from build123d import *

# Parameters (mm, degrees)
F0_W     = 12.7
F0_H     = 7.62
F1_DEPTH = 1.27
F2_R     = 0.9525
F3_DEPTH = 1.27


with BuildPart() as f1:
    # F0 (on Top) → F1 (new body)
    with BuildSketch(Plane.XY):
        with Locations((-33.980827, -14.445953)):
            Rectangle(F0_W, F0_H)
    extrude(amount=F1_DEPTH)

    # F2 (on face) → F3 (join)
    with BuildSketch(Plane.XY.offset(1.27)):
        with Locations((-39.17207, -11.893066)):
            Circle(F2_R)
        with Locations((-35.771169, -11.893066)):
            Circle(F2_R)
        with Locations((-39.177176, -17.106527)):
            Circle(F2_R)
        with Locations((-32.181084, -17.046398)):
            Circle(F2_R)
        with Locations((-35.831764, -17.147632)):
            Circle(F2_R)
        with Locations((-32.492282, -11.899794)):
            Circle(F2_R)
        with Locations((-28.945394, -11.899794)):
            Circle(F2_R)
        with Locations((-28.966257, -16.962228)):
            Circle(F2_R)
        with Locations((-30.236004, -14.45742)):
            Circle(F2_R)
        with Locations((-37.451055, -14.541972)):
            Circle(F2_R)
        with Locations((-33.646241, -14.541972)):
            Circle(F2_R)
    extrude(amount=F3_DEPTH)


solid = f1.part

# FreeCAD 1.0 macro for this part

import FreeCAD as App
import Part
import Sketcher
Q = App.Units.Quantity

doc = App.newDocument("Part")
body = doc.addObject("PartDesign::Body", "Body")

sketch1 = body.newObject("Sketcher::SketchObject", "Sketch")
sketch1.AttachmentSupport = (doc.getObject("XY_Plane"), [""])
sketch1.MapMode = "FlatFace"
sketch1.addGeometry(Part.LineSegment(App.Vector(-40, -11, 0), App.Vector(-40, -18, 0)), False)
sketch1.addGeometry(Part.LineSegment(App.Vector(-40, -18, 0), App.Vector(-28, -18, 0)), False)
sketch1.addGeometry(Part.LineSegment(App.Vector(-28, -18, 0), App.Vector(-28, -11, 0)), False)
sketch1.addGeometry(Part.LineSegment(App.Vector(-28, -11, 0), App.Vector(-40, -11, 0)), False)
sketch1.addConstraint(Sketcher.Constraint("Coincident", 0, 2, 1, 1))
sketch1.addConstraint(Sketcher.Constraint("Coincident", 1, 2, 2, 1))
sketch1.addConstraint(Sketcher.Constraint("Coincident", 2, 2, 3, 1))
sketch1.addConstraint(Sketcher.Constraint("Coincident", 3, 2, 0, 1))
sketch1.addConstraint(Sketcher.Constraint("Vertical", 0))
sketch1.addConstraint(Sketcher.Constraint("Horizontal", 1))
sketch1.addConstraint(Sketcher.Constraint("Vertical", 2))
sketch1.addConstraint(Sketcher.Constraint("Horizontal", 3))
sketch1.addConstraint(Sketcher.Constraint("DistanceX", 1, 1, 1, 2, Q("0.5 in")))
sketch1.addConstraint(Sketcher.Constraint("DistanceY", 0, 2, 0, 1, Q("0.3 in")))
sketch1.addConstraint(Sketcher.Constraint("DistanceX", 0, 2, -1, 1, Q("40.330827 mm")))
sketch1.addConstraint(Sketcher.Constraint("DistanceY", 0, 2, -1, 1, Q("18.255953 mm")))
pad1 = body.newObject("PartDesign::Pad", "Pad")
pad1.Profile = sketch1
pad1.Length = Q("0.05 in")

sketch2 = body.newObject("Sketcher::SketchObject", "Sketch001")
sketch2.AttachmentSupport = (doc.getObject("XY_Plane"), [""])
sketch2.MapMode = "FlatFace"
sketch2.AttachmentOffset = App.Placement(App.Vector(0, 0, 0.05 * 25.4), App.Rotation())
sketch2.addGeometry(Part.Circle(App.Vector(-39.2, -11.9, 0), App.Vector(0, 0, 1), 1), False)
sketch2.addGeometry(Part.Circle(App.Vector(-35.8, -11.9, 0), App.Vector(0, 0, 1), 1), False)
sketch2.addGeometry(Part.Circle(App.Vector(-39.2, -17.1, 0), App.Vector(0, 0, 1), 1), False)
sketch2.addGeometry(Part.Circle(App.Vector(-32.2, -17, 0), App.Vector(0, 0, 1), 1), False)
sketch2.addGeometry(Part.Circle(App.Vector(-35.8, -17.1, 0), App.Vector(0, 0, 1), 1), False)
sketch2.addGeometry(Part.Circle(App.Vector(-32.5, -11.9, 0), App.Vector(0, 0, 1), 1), False)
sketch2.addGeometry(Part.Circle(App.Vector(-28.9, -11.9, 0), App.Vector(0, 0, 1), 1), False)
sketch2.addGeometry(Part.Circle(App.Vector(-29, -17, 0), App.Vector(0, 0, 1), 1), False)
sketch2.addGeometry(Part.Circle(App.Vector(-30.2, -14.5, 0), App.Vector(0, 0, 1), 1), False)
sketch2.addGeometry(Part.Circle(App.Vector(-37.5, -14.5, 0), App.Vector(0, 0, 1), 1), False)
sketch2.addGeometry(Part.Circle(App.Vector(-33.6, -14.5, 0), App.Vector(0, 0, 1), 1), False)
sketch2.addConstraint(Sketcher.Constraint("Equal", 0, 1))
sketch2.addConstraint(Sketcher.Constraint("Equal", 1, 2))
sketch2.addConstraint(Sketcher.Constraint("Equal", 2, 3))
sketch2.addConstraint(Sketcher.Constraint("Equal", 3, 4))
sketch2.addConstraint(Sketcher.Constraint("Equal", 4, 5))
sketch2.addConstraint(Sketcher.Constraint("Equal", 5, 6))
sketch2.addConstraint(Sketcher.Constraint("Equal", 6, 7))
sketch2.addConstraint(Sketcher.Constraint("Equal", 7, 8))
sketch2.addConstraint(Sketcher.Constraint("Equal", 8, 9))
sketch2.addConstraint(Sketcher.Constraint("Equal", 9, 10))
sketch2.addConstraint(Sketcher.Constraint("Horizontal", 0, 3, 1, 3))
sketch2.addConstraint(Sketcher.Constraint("Horizontal", 5, 3, 6, 3))
sketch2.addConstraint(Sketcher.Constraint("Horizontal", 9, 3, 10, 3))
sketch2.addConstraint(Sketcher.Constraint("Diameter", 0, Q("0.075 in")))
sketch2.addConstraint(Sketcher.Constraint("DistanceY", 3, 3, -1, 1, Q("17.046398 mm")))
sketch2.addConstraint(Sketcher.Constraint("DistanceX", 0, 3, 1, 3, Q("3.400901 mm")))
sketch2.addConstraint(Sketcher.Constraint("DistanceX", 5, 3, 3, 3, Q("0.311198 mm")))
sketch2.addConstraint(Sketcher.Constraint("DistanceX", 0, 3, -1, 1, Q("39.17207 mm")))
sketch2.addConstraint(Sketcher.Constraint("DistanceY", 8, 3, -1, 1, Q("14.45742 mm")))
sketch2.addConstraint(Sketcher.Constraint("DistanceX", 10, 3, -1, 1, Q("33.646241 mm")))
sketch2.addConstraint(Sketcher.Constraint("DistanceY", 2, 3, 0, 3, Q("5.213461 mm")))
sketch2.addConstraint(Sketcher.Constraint("DistanceY", 2, 3, 3, 3, Q("0.060129 mm")))
sketch2.addConstraint(Sketcher.Constraint("DistanceX", 4, 3, 3, 3, Q("3.65068 mm")))
sketch2.addConstraint(Sketcher.Constraint("DistanceY", 5, 3, 1, 3, Q("0.006728 mm")))
sketch2.addConstraint(Sketcher.Constraint("DistanceY", 4, 3, 5, 3, Q("5.247838 mm")))
sketch2.addConstraint(Sketcher.Constraint("DistanceX", 5, 3, 6, 3, Q("3.546888 mm")))
sketch2.addConstraint(Sketcher.Constraint("DistanceY", 3, 3, 7, 3, Q("0.08417 mm")))
sketch2.addConstraint(Sketcher.Constraint("DistanceX", 8, 3, 6, 3, Q("1.29061 mm")))
sketch2.addConstraint(Sketcher.Constraint("DistanceX", 9, 3, 4, 3, Q("1.619291 mm")))
sketch2.addConstraint(Sketcher.Constraint("DistanceY", 4, 3, 9, 3, Q("2.60566 mm")))
sketch2.addConstraint(Sketcher.Constraint("DistanceX", 2, 3, 9, 3, Q("1.726121 mm")))
sketch2.addConstraint(Sketcher.Constraint("DistanceX", 10, 3, 5, 3, Q("1.153959 mm")))
sketch2.addConstraint(Sketcher.Constraint("DistanceX", 7, 3, -1, 1, Q("28.966257 mm")))
pad2 = body.newObject("PartDesign::Pad", "Pad001")
pad2.Profile = sketch2
pad2.Length = Q("0.05 in")

doc.recompute()
